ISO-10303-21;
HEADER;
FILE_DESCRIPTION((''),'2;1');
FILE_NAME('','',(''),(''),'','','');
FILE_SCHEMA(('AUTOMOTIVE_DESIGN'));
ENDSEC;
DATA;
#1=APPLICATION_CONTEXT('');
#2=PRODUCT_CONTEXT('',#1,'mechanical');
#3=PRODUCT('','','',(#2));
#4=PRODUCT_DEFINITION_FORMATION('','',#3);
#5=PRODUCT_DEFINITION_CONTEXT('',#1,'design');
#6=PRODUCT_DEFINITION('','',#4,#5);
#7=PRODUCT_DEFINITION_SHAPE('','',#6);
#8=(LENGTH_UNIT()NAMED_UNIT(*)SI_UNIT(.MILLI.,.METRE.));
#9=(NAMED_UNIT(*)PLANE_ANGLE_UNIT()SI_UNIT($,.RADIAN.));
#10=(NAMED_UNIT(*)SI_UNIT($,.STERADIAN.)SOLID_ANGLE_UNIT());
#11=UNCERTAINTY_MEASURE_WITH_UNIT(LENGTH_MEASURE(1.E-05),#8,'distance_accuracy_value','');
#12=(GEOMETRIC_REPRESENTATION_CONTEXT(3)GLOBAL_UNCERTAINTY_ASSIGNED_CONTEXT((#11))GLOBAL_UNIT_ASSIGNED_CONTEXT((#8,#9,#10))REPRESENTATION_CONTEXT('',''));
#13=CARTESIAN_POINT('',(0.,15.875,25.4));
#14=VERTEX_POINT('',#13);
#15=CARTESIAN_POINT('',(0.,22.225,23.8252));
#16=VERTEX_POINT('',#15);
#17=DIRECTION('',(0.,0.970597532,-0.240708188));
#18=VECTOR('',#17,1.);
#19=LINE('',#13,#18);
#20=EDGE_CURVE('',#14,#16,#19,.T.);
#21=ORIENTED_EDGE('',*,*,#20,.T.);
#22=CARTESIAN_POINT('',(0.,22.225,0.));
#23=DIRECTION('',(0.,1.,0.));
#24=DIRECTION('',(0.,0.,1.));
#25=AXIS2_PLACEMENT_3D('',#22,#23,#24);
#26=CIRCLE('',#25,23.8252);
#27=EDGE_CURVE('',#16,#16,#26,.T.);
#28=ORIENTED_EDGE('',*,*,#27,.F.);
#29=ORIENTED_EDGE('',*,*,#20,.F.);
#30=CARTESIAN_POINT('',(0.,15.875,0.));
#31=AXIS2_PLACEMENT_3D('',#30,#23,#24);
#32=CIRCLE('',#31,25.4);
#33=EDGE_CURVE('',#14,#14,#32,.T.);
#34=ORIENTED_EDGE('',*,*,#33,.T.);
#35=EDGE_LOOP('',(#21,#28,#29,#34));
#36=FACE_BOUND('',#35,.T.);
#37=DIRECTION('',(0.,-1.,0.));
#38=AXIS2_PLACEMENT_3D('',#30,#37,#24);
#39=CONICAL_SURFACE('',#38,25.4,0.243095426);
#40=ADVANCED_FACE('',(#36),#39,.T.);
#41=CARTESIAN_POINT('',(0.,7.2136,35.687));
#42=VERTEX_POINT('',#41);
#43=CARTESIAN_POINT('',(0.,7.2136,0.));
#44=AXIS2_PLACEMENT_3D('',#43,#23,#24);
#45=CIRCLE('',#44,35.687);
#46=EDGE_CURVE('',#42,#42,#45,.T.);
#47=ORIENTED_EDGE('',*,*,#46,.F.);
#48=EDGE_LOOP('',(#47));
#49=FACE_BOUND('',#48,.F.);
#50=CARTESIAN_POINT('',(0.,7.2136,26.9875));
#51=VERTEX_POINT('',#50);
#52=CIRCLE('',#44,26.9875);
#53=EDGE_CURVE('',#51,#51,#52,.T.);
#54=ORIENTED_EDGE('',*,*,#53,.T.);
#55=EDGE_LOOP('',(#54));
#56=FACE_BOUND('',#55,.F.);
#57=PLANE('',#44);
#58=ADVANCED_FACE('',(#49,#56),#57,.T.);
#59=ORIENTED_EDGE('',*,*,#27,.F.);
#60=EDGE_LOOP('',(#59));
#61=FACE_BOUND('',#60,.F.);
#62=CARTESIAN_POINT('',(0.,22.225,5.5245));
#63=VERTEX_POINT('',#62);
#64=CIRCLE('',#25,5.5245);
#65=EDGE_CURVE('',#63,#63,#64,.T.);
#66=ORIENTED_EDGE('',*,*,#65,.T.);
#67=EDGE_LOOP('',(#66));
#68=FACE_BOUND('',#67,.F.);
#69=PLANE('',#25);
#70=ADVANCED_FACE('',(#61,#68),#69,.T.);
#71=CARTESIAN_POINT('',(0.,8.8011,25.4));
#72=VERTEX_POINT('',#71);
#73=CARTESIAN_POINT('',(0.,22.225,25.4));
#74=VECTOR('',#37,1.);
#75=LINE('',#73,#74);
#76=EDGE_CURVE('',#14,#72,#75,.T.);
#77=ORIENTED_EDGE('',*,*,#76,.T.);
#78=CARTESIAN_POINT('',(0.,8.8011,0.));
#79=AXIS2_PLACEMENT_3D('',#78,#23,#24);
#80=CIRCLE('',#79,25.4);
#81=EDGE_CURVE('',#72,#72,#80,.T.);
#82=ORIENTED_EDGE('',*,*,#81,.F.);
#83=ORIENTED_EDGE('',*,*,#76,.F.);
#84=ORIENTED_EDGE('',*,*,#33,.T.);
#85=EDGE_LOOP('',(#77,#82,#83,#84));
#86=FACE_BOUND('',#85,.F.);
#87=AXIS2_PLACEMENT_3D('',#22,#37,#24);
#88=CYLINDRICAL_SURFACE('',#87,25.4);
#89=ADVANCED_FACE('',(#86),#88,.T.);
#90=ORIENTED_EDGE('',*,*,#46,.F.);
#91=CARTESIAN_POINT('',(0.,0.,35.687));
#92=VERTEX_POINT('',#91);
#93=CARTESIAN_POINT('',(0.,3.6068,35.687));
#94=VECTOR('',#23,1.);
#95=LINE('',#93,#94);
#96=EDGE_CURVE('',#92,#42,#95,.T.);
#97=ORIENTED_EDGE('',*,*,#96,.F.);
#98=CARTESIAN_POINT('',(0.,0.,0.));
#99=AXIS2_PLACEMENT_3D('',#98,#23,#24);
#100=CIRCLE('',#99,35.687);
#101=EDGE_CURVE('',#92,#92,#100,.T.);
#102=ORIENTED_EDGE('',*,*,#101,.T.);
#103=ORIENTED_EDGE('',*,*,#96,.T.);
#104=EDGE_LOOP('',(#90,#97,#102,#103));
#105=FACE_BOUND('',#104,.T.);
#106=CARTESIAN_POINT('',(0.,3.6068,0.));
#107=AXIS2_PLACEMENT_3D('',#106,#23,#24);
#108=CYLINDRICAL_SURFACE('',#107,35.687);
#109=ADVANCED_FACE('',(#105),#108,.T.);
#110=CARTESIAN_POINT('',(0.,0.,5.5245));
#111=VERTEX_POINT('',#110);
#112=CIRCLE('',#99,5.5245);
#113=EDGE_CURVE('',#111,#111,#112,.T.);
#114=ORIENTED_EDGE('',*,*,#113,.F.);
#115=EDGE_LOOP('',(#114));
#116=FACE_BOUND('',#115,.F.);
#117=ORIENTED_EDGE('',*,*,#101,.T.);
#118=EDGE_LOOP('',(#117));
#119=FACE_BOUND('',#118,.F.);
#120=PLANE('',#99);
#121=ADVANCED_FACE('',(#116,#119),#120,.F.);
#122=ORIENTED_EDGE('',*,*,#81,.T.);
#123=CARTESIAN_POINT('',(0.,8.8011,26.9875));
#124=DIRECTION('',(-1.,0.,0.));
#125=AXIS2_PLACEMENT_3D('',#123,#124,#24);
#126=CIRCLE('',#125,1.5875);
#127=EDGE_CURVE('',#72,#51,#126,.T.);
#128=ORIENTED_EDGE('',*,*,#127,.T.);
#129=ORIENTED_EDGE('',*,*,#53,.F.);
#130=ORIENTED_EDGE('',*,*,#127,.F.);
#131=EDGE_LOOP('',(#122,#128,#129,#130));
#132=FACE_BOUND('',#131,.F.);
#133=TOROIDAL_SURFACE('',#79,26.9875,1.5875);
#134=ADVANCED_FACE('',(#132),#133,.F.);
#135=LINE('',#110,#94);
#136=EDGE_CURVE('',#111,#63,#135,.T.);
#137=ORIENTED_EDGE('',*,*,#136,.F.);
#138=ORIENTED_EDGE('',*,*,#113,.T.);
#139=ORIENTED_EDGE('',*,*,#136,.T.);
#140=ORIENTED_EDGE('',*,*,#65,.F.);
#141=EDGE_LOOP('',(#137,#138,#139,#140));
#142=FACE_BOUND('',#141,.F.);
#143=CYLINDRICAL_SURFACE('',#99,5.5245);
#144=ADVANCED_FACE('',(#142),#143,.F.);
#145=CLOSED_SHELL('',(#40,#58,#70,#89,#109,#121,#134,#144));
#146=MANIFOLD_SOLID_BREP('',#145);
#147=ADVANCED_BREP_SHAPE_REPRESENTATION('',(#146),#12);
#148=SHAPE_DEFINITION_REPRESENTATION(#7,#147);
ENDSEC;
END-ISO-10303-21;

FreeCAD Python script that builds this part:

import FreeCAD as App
import Part
import Sketcher
from FreeCAD import Vector
Q = App.Units.Quantity


def edges_at(feature, points):
    """Names of the edges that pass closest to the given points."""
    edges = feature.Shape.Edges
    near = lambda p: min(range(len(edges)), key=lambda i: edges[i].distToShape(Part.Vertex(*p))[0])
    return sorted({f"Edge{near(p) + 1}" for p in points})

doc = App.newDocument("Part")
body = doc.addObject("PartDesign::Body", "Body")

# Sketch on YZ plane
sketch1 = body.newObject("Sketcher::SketchObject", "Sketch")
sketch1.AttachmentSupport = (doc.getObject("YZ_Plane"), [""])
sketch1.MapMode = "FlatFace"
sketch1.addGeometry([
    Part.LineSegment(Vector(22, 6, 0), Vector(22, 25, 0)),  # 0
    Part.LineSegment(Vector(22, 25, 0), Vector(7, 25, 0)),  # 1
    Part.LineSegment(Vector(7, 25, 0), Vector(7, 36, 0)),  # 2
    Part.LineSegment(Vector(7, 36, 0), Vector(0, 36, 0)),  # 3
    Part.LineSegment(Vector(0, 36, 0), Vector(0, 6, 0)),  # 4
    Part.LineSegment(Vector(0, 6, 0), Vector(22, 6, 0)),  # 5
], False)
sketch1.addConstraint([
    Sketcher.Constraint("Coincident", 0, 2, 1, 1),
    Sketcher.Constraint("Coincident", 1, 2, 2, 1),
    Sketcher.Constraint("Coincident", 2, 2, 3, 1),
    Sketcher.Constraint("Coincident", 3, 2, 4, 1),
    Sketcher.Constraint("Coincident", 4, 2, 5, 1),
    Sketcher.Constraint("Coincident", 5, 2, 0, 1),
    Sketcher.Constraint("Vertical", 0),
    Sketcher.Constraint("Horizontal", 1),
    Sketcher.Constraint("Vertical", 2),
    Sketcher.Constraint("Horizontal", 3),
    Sketcher.Constraint("Vertical", 4),
    Sketcher.Constraint("Horizontal", 5),
    Sketcher.Constraint("PointOnObject", 3, 2, -2),
    Sketcher.Constraint("DistanceY", -1, 1, 0, 2, Q("1 in")),
    Sketcher.Constraint("DistanceX", 1, 2, 1, 1, Q("0.591 in")),
    Sketcher.Constraint("DistanceX", 3, 2, 3, 1, Q("0.284 in")),
    Sketcher.Constraint("DistanceY", 2, 1, 2, 2, Q("0.405 in")),
    Sketcher.Constraint("DistanceY", 4, 2, 4, 1, Q("1.1875 in")),
])
revolution = body.newObject("PartDesign::Revolution", "Revolution")
revolution.Profile = sketch1
revolution.ReferenceAxis = (sketch1, ["H_Axis"])
revolution.Angle = 360
doc.recompute()

fillet = body.newObject("PartDesign::Fillet", "Fillet")
fillet.Base = (revolution, edges_at(revolution, [(0, 7.214, -25.4)]))
fillet.Radius = Q("0.0625 in")
doc.recompute()

chamfer = body.newObject("PartDesign::Chamfer", "Chamfer")
chamfer.Base = (fillet, edges_at(fillet, [(0, 22.225, -25.4)]))
chamfer.ChamferType = "Two distances"
chamfer.Size = Q("0.25 in")
chamfer.Size2 = Q("0.062 in")

doc.recompute()
